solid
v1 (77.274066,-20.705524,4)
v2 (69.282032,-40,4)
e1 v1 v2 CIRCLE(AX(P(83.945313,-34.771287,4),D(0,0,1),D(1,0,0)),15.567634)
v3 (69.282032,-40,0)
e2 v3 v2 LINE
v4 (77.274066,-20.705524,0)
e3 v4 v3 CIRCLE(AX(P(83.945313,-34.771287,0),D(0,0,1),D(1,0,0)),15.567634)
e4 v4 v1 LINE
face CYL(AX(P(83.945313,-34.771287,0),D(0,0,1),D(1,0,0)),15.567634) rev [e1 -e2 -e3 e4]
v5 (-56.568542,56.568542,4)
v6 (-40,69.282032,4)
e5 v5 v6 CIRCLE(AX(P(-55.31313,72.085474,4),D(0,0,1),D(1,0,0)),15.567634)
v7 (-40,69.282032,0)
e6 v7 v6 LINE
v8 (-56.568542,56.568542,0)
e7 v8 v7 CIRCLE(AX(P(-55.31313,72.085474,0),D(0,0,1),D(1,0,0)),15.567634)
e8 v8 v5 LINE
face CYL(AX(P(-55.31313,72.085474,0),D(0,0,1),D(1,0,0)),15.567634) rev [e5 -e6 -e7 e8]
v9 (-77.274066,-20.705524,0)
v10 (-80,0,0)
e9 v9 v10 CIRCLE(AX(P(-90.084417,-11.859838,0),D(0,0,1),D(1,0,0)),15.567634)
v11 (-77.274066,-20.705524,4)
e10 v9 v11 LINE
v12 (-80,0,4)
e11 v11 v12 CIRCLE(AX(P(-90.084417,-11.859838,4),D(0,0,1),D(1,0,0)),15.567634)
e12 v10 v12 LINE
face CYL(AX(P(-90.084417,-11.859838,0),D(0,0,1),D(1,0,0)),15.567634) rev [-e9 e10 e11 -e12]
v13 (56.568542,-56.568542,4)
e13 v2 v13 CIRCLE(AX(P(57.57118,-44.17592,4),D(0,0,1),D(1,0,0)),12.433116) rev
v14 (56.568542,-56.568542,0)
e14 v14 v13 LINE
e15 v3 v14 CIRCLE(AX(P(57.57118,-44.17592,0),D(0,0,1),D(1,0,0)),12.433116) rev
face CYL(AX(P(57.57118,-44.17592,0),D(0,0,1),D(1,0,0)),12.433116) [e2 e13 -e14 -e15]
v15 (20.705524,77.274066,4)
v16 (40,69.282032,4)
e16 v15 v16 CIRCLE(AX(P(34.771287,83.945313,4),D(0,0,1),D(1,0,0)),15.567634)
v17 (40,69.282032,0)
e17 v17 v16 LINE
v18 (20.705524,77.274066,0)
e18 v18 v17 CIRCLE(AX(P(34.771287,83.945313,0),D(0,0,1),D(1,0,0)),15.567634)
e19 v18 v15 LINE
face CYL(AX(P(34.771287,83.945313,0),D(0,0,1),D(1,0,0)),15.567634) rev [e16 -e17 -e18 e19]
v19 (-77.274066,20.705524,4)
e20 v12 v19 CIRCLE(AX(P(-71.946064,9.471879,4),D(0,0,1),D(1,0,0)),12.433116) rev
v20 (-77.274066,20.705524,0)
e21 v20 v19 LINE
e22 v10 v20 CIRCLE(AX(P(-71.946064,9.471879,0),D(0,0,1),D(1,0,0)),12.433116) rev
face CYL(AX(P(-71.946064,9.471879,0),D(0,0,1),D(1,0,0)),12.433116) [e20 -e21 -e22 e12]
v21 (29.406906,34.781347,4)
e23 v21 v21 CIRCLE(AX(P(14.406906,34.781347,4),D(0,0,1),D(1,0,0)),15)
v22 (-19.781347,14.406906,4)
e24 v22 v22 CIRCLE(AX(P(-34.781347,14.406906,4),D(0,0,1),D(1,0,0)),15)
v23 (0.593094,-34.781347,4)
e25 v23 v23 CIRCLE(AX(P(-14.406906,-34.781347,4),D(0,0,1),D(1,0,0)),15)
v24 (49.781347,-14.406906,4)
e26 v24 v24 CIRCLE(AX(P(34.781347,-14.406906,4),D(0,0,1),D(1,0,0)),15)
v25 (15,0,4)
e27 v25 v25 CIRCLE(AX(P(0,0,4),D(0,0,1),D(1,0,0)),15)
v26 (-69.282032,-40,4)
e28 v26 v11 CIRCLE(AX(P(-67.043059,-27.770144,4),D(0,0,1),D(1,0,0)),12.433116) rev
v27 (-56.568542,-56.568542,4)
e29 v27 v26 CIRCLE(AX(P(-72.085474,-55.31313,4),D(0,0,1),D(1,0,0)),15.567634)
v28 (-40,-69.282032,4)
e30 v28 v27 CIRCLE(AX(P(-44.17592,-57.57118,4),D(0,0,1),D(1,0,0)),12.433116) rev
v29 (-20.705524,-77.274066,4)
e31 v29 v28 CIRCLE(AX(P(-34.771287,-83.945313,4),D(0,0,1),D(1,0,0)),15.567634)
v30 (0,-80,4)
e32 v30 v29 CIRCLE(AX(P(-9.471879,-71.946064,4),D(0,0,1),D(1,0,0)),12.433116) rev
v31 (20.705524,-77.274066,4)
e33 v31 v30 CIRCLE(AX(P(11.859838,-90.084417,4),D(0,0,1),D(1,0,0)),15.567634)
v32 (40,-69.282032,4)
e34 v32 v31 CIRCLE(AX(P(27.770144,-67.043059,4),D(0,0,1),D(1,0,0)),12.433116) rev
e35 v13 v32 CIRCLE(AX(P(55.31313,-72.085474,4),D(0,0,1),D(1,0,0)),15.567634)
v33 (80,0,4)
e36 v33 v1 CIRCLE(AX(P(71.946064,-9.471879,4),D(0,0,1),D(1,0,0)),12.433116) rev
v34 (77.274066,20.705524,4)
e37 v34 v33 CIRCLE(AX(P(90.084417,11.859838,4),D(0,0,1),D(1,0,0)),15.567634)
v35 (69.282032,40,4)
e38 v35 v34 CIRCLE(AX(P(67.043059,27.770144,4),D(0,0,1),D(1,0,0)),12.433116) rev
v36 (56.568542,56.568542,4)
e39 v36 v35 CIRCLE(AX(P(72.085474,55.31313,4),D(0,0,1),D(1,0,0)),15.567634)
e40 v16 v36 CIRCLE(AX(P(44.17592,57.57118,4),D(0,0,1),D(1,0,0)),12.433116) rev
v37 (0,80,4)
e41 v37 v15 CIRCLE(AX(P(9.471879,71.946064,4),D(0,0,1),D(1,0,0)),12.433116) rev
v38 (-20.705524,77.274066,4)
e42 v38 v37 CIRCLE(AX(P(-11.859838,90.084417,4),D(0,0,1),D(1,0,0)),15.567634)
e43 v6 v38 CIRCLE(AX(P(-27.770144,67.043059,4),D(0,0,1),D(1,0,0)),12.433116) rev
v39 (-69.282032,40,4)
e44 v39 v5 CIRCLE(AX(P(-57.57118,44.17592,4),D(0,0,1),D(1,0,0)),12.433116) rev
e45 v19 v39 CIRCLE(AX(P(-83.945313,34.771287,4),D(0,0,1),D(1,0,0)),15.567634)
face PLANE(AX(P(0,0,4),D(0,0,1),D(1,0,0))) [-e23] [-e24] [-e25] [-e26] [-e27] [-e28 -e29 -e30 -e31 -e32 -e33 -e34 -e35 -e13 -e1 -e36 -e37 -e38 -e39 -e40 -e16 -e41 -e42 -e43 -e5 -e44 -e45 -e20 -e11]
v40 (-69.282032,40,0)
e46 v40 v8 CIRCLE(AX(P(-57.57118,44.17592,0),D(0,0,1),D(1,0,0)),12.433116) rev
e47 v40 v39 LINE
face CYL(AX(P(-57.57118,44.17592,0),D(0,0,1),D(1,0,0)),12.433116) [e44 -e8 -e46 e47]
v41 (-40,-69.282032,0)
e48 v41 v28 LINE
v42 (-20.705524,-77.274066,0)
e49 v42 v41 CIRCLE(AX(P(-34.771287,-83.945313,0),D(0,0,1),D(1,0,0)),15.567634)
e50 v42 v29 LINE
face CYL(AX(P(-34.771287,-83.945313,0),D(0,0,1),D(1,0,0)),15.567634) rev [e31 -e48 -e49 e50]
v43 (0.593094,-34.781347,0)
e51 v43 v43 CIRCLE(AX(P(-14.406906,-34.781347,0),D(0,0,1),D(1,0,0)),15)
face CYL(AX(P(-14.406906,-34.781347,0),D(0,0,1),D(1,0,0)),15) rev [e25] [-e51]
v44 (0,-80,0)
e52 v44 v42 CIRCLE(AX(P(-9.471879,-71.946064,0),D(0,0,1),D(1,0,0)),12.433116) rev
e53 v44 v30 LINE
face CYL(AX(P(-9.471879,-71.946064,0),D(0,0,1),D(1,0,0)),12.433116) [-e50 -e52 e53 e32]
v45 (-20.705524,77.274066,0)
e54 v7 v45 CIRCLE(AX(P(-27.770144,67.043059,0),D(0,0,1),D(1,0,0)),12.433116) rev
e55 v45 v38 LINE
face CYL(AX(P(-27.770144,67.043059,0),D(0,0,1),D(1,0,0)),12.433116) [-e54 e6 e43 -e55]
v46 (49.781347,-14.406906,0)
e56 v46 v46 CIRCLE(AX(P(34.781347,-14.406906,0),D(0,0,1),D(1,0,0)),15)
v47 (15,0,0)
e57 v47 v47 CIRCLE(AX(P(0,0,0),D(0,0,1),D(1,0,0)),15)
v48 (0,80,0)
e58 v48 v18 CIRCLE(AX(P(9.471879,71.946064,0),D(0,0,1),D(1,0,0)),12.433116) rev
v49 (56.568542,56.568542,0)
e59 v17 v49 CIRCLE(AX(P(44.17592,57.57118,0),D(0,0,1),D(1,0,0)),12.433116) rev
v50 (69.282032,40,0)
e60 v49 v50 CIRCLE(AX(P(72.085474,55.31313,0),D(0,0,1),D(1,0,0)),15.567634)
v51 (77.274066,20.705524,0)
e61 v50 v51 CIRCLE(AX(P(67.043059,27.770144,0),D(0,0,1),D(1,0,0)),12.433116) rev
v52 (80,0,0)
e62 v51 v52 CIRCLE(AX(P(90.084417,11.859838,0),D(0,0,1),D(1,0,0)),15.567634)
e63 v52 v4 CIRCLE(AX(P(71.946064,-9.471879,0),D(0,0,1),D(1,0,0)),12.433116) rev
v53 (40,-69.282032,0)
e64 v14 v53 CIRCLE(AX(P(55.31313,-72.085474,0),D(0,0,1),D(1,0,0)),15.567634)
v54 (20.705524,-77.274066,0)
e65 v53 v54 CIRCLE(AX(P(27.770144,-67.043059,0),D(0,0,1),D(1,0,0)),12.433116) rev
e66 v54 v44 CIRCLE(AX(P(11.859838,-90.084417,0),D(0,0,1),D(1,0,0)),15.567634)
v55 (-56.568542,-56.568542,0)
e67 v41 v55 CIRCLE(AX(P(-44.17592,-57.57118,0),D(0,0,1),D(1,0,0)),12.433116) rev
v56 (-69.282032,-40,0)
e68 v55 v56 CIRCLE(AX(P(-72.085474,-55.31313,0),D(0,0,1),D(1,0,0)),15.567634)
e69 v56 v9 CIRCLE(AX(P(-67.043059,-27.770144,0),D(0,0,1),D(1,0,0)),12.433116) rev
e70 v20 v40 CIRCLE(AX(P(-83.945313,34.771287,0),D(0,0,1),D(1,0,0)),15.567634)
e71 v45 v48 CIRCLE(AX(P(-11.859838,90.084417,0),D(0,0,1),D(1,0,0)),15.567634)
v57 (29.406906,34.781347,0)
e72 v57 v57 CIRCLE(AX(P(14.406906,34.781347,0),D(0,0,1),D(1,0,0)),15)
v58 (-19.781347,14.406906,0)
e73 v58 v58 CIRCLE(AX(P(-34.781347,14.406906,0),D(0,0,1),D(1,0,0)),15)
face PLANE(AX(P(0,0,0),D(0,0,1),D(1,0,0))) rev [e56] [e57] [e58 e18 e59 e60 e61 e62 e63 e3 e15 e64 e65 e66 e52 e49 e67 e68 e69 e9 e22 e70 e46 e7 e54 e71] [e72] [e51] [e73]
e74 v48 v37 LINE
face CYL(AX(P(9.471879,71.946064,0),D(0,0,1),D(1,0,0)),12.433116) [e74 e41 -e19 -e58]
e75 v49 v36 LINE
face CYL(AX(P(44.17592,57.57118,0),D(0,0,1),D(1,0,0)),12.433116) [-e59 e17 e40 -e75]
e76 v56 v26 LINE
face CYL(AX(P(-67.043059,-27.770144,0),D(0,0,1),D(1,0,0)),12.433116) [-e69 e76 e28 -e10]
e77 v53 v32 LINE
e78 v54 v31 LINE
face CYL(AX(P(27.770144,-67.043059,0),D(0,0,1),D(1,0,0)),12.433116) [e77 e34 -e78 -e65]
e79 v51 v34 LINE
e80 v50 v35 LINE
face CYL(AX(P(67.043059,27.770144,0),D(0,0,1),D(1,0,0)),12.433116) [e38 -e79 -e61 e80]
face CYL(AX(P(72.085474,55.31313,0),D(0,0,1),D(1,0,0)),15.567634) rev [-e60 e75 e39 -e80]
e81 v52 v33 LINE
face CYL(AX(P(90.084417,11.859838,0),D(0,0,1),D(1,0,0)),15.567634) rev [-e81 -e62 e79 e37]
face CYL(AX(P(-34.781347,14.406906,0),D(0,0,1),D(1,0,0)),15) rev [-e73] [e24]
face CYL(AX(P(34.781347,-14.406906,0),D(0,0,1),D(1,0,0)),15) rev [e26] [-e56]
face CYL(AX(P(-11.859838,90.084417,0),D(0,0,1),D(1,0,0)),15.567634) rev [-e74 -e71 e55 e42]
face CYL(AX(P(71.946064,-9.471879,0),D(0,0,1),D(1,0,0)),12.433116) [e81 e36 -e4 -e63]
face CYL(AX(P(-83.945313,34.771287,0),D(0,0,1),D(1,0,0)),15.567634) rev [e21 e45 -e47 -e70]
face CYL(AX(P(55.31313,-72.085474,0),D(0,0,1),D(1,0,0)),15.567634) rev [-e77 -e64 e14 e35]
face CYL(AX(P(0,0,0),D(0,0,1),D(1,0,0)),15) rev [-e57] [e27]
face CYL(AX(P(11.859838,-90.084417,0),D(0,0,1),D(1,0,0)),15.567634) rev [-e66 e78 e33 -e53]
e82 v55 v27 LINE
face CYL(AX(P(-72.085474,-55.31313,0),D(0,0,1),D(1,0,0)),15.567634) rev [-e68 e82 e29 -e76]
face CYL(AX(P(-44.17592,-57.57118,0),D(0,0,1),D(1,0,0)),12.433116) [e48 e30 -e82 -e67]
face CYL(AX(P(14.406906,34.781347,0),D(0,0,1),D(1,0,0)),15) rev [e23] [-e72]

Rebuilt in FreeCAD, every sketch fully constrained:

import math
import FreeCAD as App
import Part
import Sketcher

V = App.Vector

doc = App.newDocument("Part")
body = doc.addObject("PartDesign::Body", "Body")

# Sketch on XY plane
sketch1 = body.newObject("Sketcher::SketchObject", "Sketch")
sketch1.AttachmentSupport = (doc.getObject("XY_Plane"), [""])
sketch1.MapMode = "FlatFace"
sketch1.addGeometry(Part.Circle(V(0, 0, 0), V(0, 0, 1), 85), False)
sketch1.addConstraint([
    Sketcher.Constraint("Coincident", 0, 3, -1, 1),
    Sketcher.Constraint("Diameter", 0, 170.0),
])
pad1 = body.newObject("PartDesign::Pad", "Pad")
pad1.Profile = sketch1
pad1.Length = 4

# Sketch on XY plane
sketch2 = body.newObject("Sketcher::SketchObject", "Sketch001")
sketch2.AttachmentSupport = (doc.getObject("XY_Plane"), [""])
sketch2.MapMode = "FlatFace"
sketch2.addGeometry([
    Part.ArcOfCircle(Part.Circle(V(0, 0, 0), V(0, 0, 1), 85), math.radians(53), math.radians(83)),  # 0
    Part.ArcOfCircle(Part.Circle(V(9, 72, 0), V(0, 0, 1), 12), math.radians(25), math.radians(83)),  # 1
    Part.ArcOfCircle(Part.Circle(V(35, 84, 0), V(0, 0, 1), 16), math.radians(-155), math.radians(-70)),  # 2
    Part.ArcOfCircle(Part.Circle(V(44, 58, 0), V(0, 0, 1), 12), math.radians(53), math.radians(110)),  # 3
    Part.ArcOfCircle(Part.Circle(V(9, 72, 0), V(0, 0, 1), 12), math.radians(83), math.radians(140)),  # 4
    Part.ArcOfCircle(Part.Circle(V(0, 0, 0), V(0, 0, 1), 85), math.radians(83), math.radians(113)),  # 5
    Part.ArcOfCircle(Part.Circle(V(-28, 67, 0), V(0, 0, 1), 12), math.radians(55), math.radians(113)),  # 6
    Part.ArcOfCircle(Part.Circle(V(-12, 90, 0), V(0, 0, 1), 16), math.radians(-125), math.radians(-40)),  # 7
    Part.ArcOfCircle(Part.Circle(V(-28, 67, 0), V(0, 0, 1), 12), math.radians(113), math.radians(170)),  # 8
    Part.ArcOfCircle(Part.Circle(V(0, 0, 0), V(0, 0, 1), 85), math.radians(113), math.radians(143)),  # 9
    Part.ArcOfCircle(Part.Circle(V(-58, 44, 0), V(0, 0, 1), 12), math.radians(85), math.radians(143)),  # 10
    Part.ArcOfCircle(Part.Circle(V(-55, 72, 0), V(0, 0, 1), 16), math.radians(-95), math.radians(-10)),  # 11
    Part.ArcOfCircle(Part.Circle(V(-58, 44, 0), V(0, 0, 1), 12), math.radians(143), math.radians(200)),  # 12
    Part.ArcOfCircle(Part.Circle(V(0, 0, 0), V(0, 0, 1), 85), math.radians(143), math.radians(173)),  # 13
    Part.ArcOfCircle(Part.Circle(V(-72, 9, 0), V(0, 0, 1), 12), math.radians(115), math.radians(173)),  # 14
    Part.ArcOfCircle(Part.Circle(V(-84, 35, 0), V(0, 0, 1), 16), math.radians(-65), math.radians(20)),  # 15
    Part.ArcOfCircle(Part.Circle(V(-72, 9, 0), V(0, 0, 1), 12), math.radians(173), math.radians(230)),  # 16
    Part.ArcOfCircle(Part.Circle(V(0, 0, 0), V(0, 0, 1), 85), math.radians(173), math.radians(202)),  # 17
    Part.ArcOfCircle(Part.Circle(V(-67, -28, 0), V(0, 0, 1), 12), math.radians(145), math.radians(202)),  # 18
    Part.ArcOfCircle(Part.Circle(V(-90, -12, 0), V(0, 0, 1), 16), math.radians(-35), math.radians(50)),  # 19
    Part.ArcOfCircle(Part.Circle(V(-67, -28, 0), V(0, 0, 1), 12), math.radians(-158), math.radians(-100)),  # 20
    Part.ArcOfCircle(Part.Circle(V(0, 0, 0), V(0, 0, 1), 85), math.radians(-158), math.radians(-127)),  # 21
    Part.ArcOfCircle(Part.Circle(V(-44, -58, 0), V(0, 0, 1), 12), math.radians(175), math.radians(233)),  # 22
    Part.ArcOfCircle(Part.Circle(V(-72, -55, 0), V(0, 0, 1), 16), math.radians(-5), math.radians(80)),  # 23
    Part.ArcOfCircle(Part.Circle(V(-44, -58, 0), V(0, 0, 1), 12), math.radians(-127), math.radians(-70)),  # 24
    Part.ArcOfCircle(Part.Circle(V(0, 0, 0), V(0, 0, 1), 85), math.radians(-127), math.radians(-97)),  # 25
    Part.ArcOfCircle(Part.Circle(V(-9, -72, 0), V(0, 0, 1), 12), math.radians(-155), math.radians(-97)),  # 26
    Part.ArcOfCircle(Part.Circle(V(-35, -84, 0), V(0, 0, 1), 16), math.radians(25), math.radians(110)),  # 27
    Part.ArcOfCircle(Part.Circle(V(0, 0, 0), V(0, 0, 1), 85), math.radians(-97), math.radians(-68)),  # 28
    Part.ArcOfCircle(Part.Circle(V(28, -67, 0), V(0, 0, 1), 12), math.radians(-125), math.radians(-68)),  # 29
    Part.ArcOfCircle(Part.Circle(V(12, -90, 0), V(0, 0, 1), 16), math.radians(55), math.radians(140)),  # 30
    Part.ArcOfCircle(Part.Circle(V(-9, -72, 0), V(0, 0, 1), 12), math.radians(-97), math.radians(-40)),  # 31
    Part.ArcOfCircle(Part.Circle(V(55, -72, 0), V(0, 0, 1), 16), math.radians(85), math.radians(170)),  # 32
    Part.ArcOfCircle(Part.Circle(V(28, -67, 0), V(0, 0, 1), 12), math.radians(-68), math.radians(-10)),  # 33
    Part.ArcOfCircle(Part.Circle(V(0, 0, 0), V(0, 0, 1), 85), math.radians(-68), math.radians(-37)),  # 34
    Part.ArcOfCircle(Part.Circle(V(58, -44, 0), V(0, 0, 1), 12), math.radians(-95), math.radians(-37)),  # 35
    Part.ArcOfCircle(Part.Circle(V(0, 0, 0), V(0, 0, 1), 85), math.radians(-37), math.radians(-7)),  # 36
    Part.ArcOfCircle(Part.Circle(V(72, -9, 0), V(0, 0, 1), 12), math.radians(-65), math.radians(-7)),  # 37
    Part.ArcOfCircle(Part.Circle(V(84, -35, 0), V(0, 0, 1), 16), math.radians(115), math.radians(200)),  # 38
    Part.ArcOfCircle(Part.Circle(V(58, -44, 0), V(0, 0, 1), 12), math.radians(-37), math.radians(20)),  # 39
    Part.ArcOfCircle(Part.Circle(V(0, 0, 0), V(0, 0, 1), 85), math.radians(0), math.radians(22)),  # 40
    Part.ArcOfCircle(Part.Circle(V(67, 28, 0), V(0, 0, 1), 12), math.radians(-35), math.radians(22)),  # 41
    Part.ArcOfCircle(Part.Circle(V(90, 12, 0), V(0, 0, 1), 16), math.radians(145), math.radians(230)),  # 42
    Part.ArcOfCircle(Part.Circle(V(72, -9, 0), V(0, 0, 1), 12), math.radians(-7), math.radians(50)),  # 43
    Part.ArcOfCircle(Part.Circle(V(0, 0, 0), V(0, 0, 1), 85), math.radians(-7.5), math.radians(0)),  # 44
    Part.ArcOfCircle(Part.Circle(V(0, 0, 0), V(0, 0, 1), 85), math.radians(22), math.radians(53)),  # 45
    Part.ArcOfCircle(Part.Circle(V(44, 58, 0), V(0, 0, 1), 12), math.radians(-5), math.radians(53)),  # 46
    Part.ArcOfCircle(Part.Circle(V(72, 55, 0), V(0, 0, 1), 16), math.radians(175), math.radians(260)),  # 47
    Part.ArcOfCircle(Part.Circle(V(67, 28, 0), V(0, 0, 1), 12), math.radians(22), math.radians(80)),  # 48
], False)
sketch2.addConstraint([
    Sketcher.Constraint("Tangent", 0, 2, 1, 2),
    Sketcher.Constraint("Tangent", 1, 1, 2, 1),
    Sketcher.Constraint("Tangent", 2, 2, 3, 2),
    Sketcher.Constraint("Tangent", 3, 1, 0, 1),
    Sketcher.Constraint("Tangent", 4, 1, 5, 1),
    Sketcher.Constraint("Tangent", 5, 2, 6, 2),
    Sketcher.Constraint("Tangent", 6, 1, 7, 1),
    Sketcher.Constraint("Tangent", 7, 2, 4, 2),
    Sketcher.Constraint("Tangent", 8, 1, 9, 1),
    Sketcher.Constraint("Tangent", 9, 2, 10, 2),
    Sketcher.Constraint("Tangent", 10, 1, 11, 1),
    Sketcher.Constraint("Tangent", 11, 2, 8, 2),
    Sketcher.Constraint("Tangent", 12, 1, 13, 1),
    Sketcher.Constraint("Tangent", 13, 2, 14, 2),
    Sketcher.Constraint("Tangent", 14, 1, 15, 1),
    Sketcher.Constraint("Tangent", 15, 2, 12, 2),
    Sketcher.Constraint("Tangent", 16, 1, 17, 1),
    Sketcher.Constraint("Tangent", 17, 2, 18, 2),
    Sketcher.Constraint("Tangent", 18, 1, 19, 1),
    Sketcher.Constraint("Tangent", 19, 2, 16, 2),
    Sketcher.Constraint("Tangent", 20, 1, 21, 1),
    Sketcher.Constraint("Tangent", 21, 2, 22, 2),
    Sketcher.Constraint("Tangent", 22, 1, 23, 1),
    Sketcher.Constraint("Tangent", 23, 2, 20, 2),
    Sketcher.Constraint("Tangent", 24, 1, 25, 1),
    Sketcher.Constraint("Tangent", 25, 2, 26, 2),
    Sketcher.Constraint("Tangent", 26, 1, 27, 1),
    Sketcher.Constraint("Tangent", 27, 2, 24, 2),
    Sketcher.Constraint("Tangent", 28, 2, 29, 2),
    Sketcher.Constraint("Tangent", 29, 1, 30, 1),
    Sketcher.Constraint("Tangent", 30, 2, 31, 2),
    Sketcher.Constraint("Tangent", 31, 1, 28, 1),
    Sketcher.Constraint("Tangent", 32, 2, 33, 2),
    Sketcher.Constraint("Tangent", 33, 1, 34, 1),
    Sketcher.Constraint("Tangent", 34, 2, 35, 2),
    Sketcher.Constraint("Tangent", 35, 1, 32, 1),
    Sketcher.Constraint("Tangent", 36, 2, 37, 2),
    Sketcher.Constraint("Tangent", 37, 1, 38, 1),
    Sketcher.Constraint("Tangent", 38, 2, 39, 2),
    Sketcher.Constraint("Tangent", 39, 1, 36, 1),
    Sketcher.Constraint("Tangent", 40, 2, 41, 2),
    Sketcher.Constraint("Tangent", 41, 1, 42, 1),
    Sketcher.Constraint("Tangent", 42, 2, 43, 2),
    Sketcher.Constraint("Tangent", 43, 1, 44, 1),
    Sketcher.Constraint("Tangent", 44, 2, 40, 1),
    Sketcher.Constraint("Tangent", 45, 2, 46, 2),
    Sketcher.Constraint("Tangent", 46, 1, 47, 1),
    Sketcher.Constraint("Tangent", 47, 2, 48, 2),
    Sketcher.Constraint("Tangent", 48, 1, 45, 1),
    Sketcher.Constraint("Coincident", 0, 3, -1, 1),
    Sketcher.Constraint("Coincident", 5, 3, -1, 1),
    Sketcher.Constraint("Coincident", 9, 3, -1, 1),
    Sketcher.Constraint("Coincident", 13, 3, -1, 1),
    Sketcher.Constraint("Coincident", 17, 3, -1, 1),
    Sketcher.Constraint("Coincident", 21, 3, -1, 1),
    Sketcher.Constraint("Coincident", 25, 3, -1, 1),
    Sketcher.Constraint("Coincident", 28, 3, -1, 1),
    Sketcher.Constraint("Coincident", 34, 3, -1, 1),
    Sketcher.Constraint("Coincident", 36, 3, -1, 1),
    Sketcher.Constraint("Coincident", 40, 3, -1, 1),
    Sketcher.Constraint("Coincident", 45, 3, -1, 1),
    Sketcher.Constraint("Coincident", 4, 3, 1, 3),
    Sketcher.Constraint("Coincident", 8, 3, 6, 3),
    Sketcher.Constraint("Coincident", 12, 3, 10, 3),
    Sketcher.Constraint("Coincident", 16, 3, 14, 3),
    Sketcher.Constraint("Coincident", 20, 3, 18, 3),
    Sketcher.Constraint("Coincident", 24, 3, 22, 3),
    Sketcher.Constraint("Coincident", 31, 3, 26, 3),
    Sketcher.Constraint("Coincident", 33, 3, 29, 3),
    Sketcher.Constraint("Coincident", 39, 3, 35, 3),
    Sketcher.Constraint("Coincident", 43, 3, 37, 3),
    Sketcher.Constraint("Coincident", 46, 3, 3, 3),
    Sketcher.Constraint("Coincident", 48, 3, 41, 3),
    Sketcher.Constraint("Equal", 1, 3),
    Sketcher.Constraint("Equal", 3, 4),
    Sketcher.Constraint("Equal", 4, 6),
    Sketcher.Constraint("Equal", 2, 7),
    Sketcher.Constraint("Equal", 6, 8),
    Sketcher.Constraint("Equal", 8, 10),
    Sketcher.Constraint("Equal", 7, 11),
    Sketcher.Constraint("Equal", 10, 12),
    Sketcher.Constraint("Equal", 12, 14),
    Sketcher.Constraint("Equal", 11, 15),
    Sketcher.Constraint("Equal", 14, 16),
    Sketcher.Constraint("Equal", 16, 18),
    Sketcher.Constraint("Equal", 15, 19),
    Sketcher.Constraint("Equal", 18, 20),
    Sketcher.Constraint("Equal", 20, 22),
    Sketcher.Constraint("Equal", 19, 23),
    Sketcher.Constraint("Equal", 22, 24),
    Sketcher.Constraint("Equal", 24, 26),
    Sketcher.Constraint("Equal", 23, 27),
    Sketcher.Constraint("Equal", 25, 28),
    Sketcher.Constraint("Equal", 26, 29),
    Sketcher.Constraint("Equal", 27, 30),
    Sketcher.Constraint("Equal", 30, 32),
    Sketcher.Constraint("Equal", 31, 33),
    Sketcher.Constraint("Equal", 33, 35),
    Sketcher.Constraint("Equal", 34, 36),
    Sketcher.Constraint("Equal", 35, 37),
    Sketcher.Constraint("Equal", 32, 38),
    Sketcher.Constraint("Equal", 36, 40),
    Sketcher.Constraint("Equal", 39, 41),
    Sketcher.Constraint("Equal", 38, 42),
    Sketcher.Constraint("Equal", 41, 43),
    Sketcher.Constraint("Equal", 44, 45),
    Sketcher.Constraint("Equal", 42, 47),
    Sketcher.Constraint("Symmetric", 2, 3, 27, 3, -1, 1),
    Sketcher.Constraint("Symmetric", 11, 3, 32, 3, -1, 1),
    Sketcher.Constraint("Symmetric", 19, 3, 42, 3, -1, 1),
    Sketcher.Constraint("Symmetric", 1, 1, 6, 1, -2),
    Sketcher.Constraint("Symmetric", 2, 2, 11, 2, -2),
    Sketcher.Constraint("Symmetric", 18, 1, 37, 1, -2),
    Sketcher.Constraint("PointOnObject", 19, 2, -1),
    Sketcher.Constraint("PointOnObject", 44, 2, -1),
    Sketcher.Constraint("Radius", 0, 85.0),
    Sketcher.Constraint("DistanceY", -1, 1, 7, 2, 80.0),
])
pocket1 = body.newObject("PartDesign::Pocket", "Pocket")
pocket1.Profile = sketch2
pocket1.Length = 4
pocket1.Reversed = True

# Sketch on XY plane
sketch3 = body.newObject("Sketcher::SketchObject", "Sketch002")
sketch3.AttachmentSupport = (doc.getObject("XY_Plane"), [""])
sketch3.MapMode = "FlatFace"
sketch3.AttachmentOffset = App.Placement(V(0, 0, 4), App.Rotation())
sketch3.addGeometry(Part.Circle(V(0, 0, 0), V(0, 0, 1), 15), False)
sketch3.addConstraint([
    Sketcher.Constraint("Coincident", 0, 3, -1, 1),
    Sketcher.Constraint("Diameter", 0, 30.0),
])
pocket2 = body.newObject("PartDesign::Pocket", "Pocket001")
pocket2.Profile = sketch3
pocket2.Length = 4

# Sketch on XY plane
sketch4 = body.newObject("Sketcher::SketchObject", "Sketch003")
sketch4.AttachmentSupport = (doc.getObject("XY_Plane"), [""])
sketch4.MapMode = "FlatFace"
sketch4.AttachmentOffset = App.Placement(V(0, 0, 4), App.Rotation())
sketch4.addGeometry([
    Part.Circle(V(14, 35, 0), V(0, 0, 1), 15),
    Part.Circle(V(35, -14, 0), V(0, 0, 1), 15),
    Part.Circle(V(-14, -35, 0), V(0, 0, 1), 15),
    Part.Circle(V(-35, 14, 0), V(0, 0, 1), 15),
], False)
sketch4.addConstraint([
    Sketcher.Constraint("Equal", 0, 1),
    Sketcher.Constraint("Equal", 1, 2),
    Sketcher.Constraint("Equal", 2, 3),
    Sketcher.Constraint("Symmetric", 0, 3, 2, 3, -1, 1),
    Sketcher.Constraint("Symmetric", 1, 3, 3, 3, -1, 1),
    Sketcher.Constraint("Diameter", 0, 30.0),
    Sketcher.Constraint("DistanceX", 0, 3, 1, 3, 20.374441),
    Sketcher.Constraint("DistanceY", 2, 3, 1, 3, 20.374441),
    Sketcher.Constraint("DistanceX", 2, 3, 0, 3, 28.813811),
    Sketcher.Constraint("DistanceY", 1, 3, 3, 3, 28.813811),
])
pocket3 = body.newObject("PartDesign::Pocket", "Pocket002")
pocket3.Profile = sketch4
pocket3.Length = 4

doc.recompute()
